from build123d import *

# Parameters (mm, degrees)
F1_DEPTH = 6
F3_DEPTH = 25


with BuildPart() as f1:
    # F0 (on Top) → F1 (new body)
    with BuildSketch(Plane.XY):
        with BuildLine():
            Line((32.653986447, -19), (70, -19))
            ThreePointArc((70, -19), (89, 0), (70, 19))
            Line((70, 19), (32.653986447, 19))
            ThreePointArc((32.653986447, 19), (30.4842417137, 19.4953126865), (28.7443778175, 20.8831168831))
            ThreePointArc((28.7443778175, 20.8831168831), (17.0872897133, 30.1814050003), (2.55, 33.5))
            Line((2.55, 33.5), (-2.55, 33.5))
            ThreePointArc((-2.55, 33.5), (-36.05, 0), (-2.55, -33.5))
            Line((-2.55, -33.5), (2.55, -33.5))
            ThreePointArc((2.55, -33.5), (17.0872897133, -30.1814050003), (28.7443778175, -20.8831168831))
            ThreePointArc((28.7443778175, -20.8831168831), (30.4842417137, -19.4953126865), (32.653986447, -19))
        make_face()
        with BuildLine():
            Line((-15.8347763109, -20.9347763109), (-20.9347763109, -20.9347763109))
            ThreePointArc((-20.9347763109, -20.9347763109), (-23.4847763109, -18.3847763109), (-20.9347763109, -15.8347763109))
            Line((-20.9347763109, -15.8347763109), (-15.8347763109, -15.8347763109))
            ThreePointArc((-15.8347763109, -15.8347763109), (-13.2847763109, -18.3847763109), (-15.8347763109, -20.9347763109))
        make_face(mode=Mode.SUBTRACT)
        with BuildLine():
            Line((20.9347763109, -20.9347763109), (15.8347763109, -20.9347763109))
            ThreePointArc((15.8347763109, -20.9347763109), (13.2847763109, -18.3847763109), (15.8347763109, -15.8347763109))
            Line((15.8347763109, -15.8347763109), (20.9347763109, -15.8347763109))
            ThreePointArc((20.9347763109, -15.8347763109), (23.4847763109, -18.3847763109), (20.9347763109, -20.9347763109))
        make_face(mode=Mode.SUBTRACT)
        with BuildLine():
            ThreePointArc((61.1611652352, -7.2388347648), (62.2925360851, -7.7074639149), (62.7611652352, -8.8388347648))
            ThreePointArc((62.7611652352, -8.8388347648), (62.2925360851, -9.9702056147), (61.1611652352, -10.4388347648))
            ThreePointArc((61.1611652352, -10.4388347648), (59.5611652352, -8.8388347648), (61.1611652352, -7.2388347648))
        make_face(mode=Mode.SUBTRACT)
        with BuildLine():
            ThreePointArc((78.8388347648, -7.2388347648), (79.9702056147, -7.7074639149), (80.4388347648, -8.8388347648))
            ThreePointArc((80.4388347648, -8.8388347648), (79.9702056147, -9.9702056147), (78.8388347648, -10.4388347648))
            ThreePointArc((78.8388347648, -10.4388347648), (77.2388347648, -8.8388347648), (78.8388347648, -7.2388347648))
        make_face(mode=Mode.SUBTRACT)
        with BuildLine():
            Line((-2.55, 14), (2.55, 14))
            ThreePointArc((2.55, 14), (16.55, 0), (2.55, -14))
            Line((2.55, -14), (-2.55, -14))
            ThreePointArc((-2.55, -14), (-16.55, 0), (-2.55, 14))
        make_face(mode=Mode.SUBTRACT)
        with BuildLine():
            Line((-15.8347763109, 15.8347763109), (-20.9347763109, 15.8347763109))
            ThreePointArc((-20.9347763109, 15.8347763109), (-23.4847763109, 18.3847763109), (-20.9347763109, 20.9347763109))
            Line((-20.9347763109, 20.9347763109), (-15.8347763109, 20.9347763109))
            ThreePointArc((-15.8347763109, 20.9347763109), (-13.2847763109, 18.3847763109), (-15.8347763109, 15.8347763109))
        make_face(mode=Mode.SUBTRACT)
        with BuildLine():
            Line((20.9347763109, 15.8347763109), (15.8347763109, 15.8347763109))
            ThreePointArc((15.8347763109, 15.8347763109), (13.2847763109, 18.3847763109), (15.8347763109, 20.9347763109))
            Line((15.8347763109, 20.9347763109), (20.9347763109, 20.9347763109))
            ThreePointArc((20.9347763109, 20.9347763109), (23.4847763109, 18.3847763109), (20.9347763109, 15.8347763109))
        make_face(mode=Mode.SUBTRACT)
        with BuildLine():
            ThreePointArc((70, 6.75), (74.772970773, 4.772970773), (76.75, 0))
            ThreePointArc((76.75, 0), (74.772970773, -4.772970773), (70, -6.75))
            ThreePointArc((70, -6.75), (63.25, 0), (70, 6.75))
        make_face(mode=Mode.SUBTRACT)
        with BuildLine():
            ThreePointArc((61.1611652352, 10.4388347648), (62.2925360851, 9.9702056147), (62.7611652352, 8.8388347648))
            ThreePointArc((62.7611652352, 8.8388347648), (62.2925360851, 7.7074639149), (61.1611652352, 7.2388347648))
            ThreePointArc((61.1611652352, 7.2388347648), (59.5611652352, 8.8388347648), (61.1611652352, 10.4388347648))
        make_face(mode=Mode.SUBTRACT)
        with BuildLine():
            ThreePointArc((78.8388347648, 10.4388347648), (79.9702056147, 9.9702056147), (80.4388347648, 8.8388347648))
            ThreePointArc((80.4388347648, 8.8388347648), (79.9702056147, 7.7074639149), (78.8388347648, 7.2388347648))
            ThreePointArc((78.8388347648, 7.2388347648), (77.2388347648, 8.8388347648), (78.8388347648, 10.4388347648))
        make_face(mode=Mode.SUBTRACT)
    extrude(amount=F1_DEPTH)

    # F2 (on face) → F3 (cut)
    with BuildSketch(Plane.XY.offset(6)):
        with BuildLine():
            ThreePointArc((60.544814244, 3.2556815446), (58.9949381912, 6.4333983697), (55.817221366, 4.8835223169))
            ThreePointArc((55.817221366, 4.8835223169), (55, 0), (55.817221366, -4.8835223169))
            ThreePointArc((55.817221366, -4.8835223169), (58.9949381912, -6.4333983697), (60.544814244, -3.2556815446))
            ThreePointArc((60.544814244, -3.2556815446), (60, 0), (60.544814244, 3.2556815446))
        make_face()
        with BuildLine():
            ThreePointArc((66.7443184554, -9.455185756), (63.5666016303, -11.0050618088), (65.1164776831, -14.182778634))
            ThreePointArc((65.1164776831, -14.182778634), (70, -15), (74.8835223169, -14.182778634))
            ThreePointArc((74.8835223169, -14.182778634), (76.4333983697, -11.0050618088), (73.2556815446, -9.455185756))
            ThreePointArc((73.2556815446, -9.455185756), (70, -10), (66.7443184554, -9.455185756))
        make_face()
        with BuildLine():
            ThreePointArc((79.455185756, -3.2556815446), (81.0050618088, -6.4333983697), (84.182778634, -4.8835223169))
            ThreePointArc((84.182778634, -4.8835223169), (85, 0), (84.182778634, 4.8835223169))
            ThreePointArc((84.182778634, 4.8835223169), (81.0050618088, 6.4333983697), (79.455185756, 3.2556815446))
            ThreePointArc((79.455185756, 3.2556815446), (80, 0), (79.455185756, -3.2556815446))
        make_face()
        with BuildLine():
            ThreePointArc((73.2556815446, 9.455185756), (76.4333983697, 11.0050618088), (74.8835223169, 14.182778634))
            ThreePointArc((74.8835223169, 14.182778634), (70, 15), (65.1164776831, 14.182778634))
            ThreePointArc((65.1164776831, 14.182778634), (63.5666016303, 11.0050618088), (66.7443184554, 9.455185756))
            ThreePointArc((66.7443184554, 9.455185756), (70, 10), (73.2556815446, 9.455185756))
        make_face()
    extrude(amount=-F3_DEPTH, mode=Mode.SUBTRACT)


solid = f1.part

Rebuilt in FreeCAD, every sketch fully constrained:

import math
import FreeCAD as App
import Part
import Sketcher

V = App.Vector

doc = App.newDocument("Part")
body = doc.addObject("PartDesign::Body", "Body")

# Sketch on XY plane
sketch1 = body.newObject("Sketcher::SketchObject", "Sketch")
sketch1.AttachmentSupport = (doc.getObject("XY_Plane"), [""])
sketch1.MapMode = "FlatFace"
sketch1.addGeometry(Part.LineSegment(V(32.7, -19, 0), V(70, -19, 0)), False)
sketch1.addGeometry(Part.ArcOfCircle(Part.Circle(V(70, 0, 0), V(0, 0, 1), 19), math.radians(-90), math.radians(90)), False)
sketch1.addGeometry(Part.LineSegment(V(70, 19, 0), V(32.7, 19, 0)), False)
sketch1.addGeometry(Part.ArcOfCircle(Part.Circle(V(32.7, 24, 0), V(0, 0, 1), 5), math.radians(-141), math.radians(-90)), False)
sketch1.addGeometry(Part.ArcOfCircle(Part.Circle(V(2.5, 0, 0), V(0, 0, 1), 33.5), math.radians(39), math.radians(90)), False)
sketch1.addGeometry(Part.LineSegment(V(2.5, 33.5, 0), V(-2.5, 33.5, 0)), False)
sketch1.addGeometry(Part.ArcOfCircle(Part.Circle(V(-2.5, 0, 0), V(0, 0, 1), 33.5), math.radians(90), math.radians(270)), False)
sketch1.addGeometry(Part.LineSegment(V(-2.5, -33.5, 0), V(2.5, -33.5, 0)), False)
sketch1.addGeometry(Part.ArcOfCircle(Part.Circle(V(2.5, 0, 0), V(0, 0, 1), 33.5), math.radians(-90), math.radians(-39)), False)
sketch1.addGeometry(Part.ArcOfCircle(Part.Circle(V(32.7, -24, 0), V(0, 0, 1), 5), math.radians(90), math.radians(141)), False)
sketch1.addGeometry(Part.ArcOfCircle(Part.Circle(V(-15.8, -18.4, 0), V(0, 0, 1), 2.5), math.radians(-90), math.radians(90)), False)
sketch1.addGeometry(Part.LineSegment(V(-15.8, -20.9, 0), V(-20.9, -20.9, 0)), False)
sketch1.addGeometry(Part.ArcOfCircle(Part.Circle(V(-20.9, -18.4, 0), V(0, 0, 1), 2.5), math.radians(90), math.radians(270)), False)
sketch1.addGeometry(Part.LineSegment(V(-20.9, -15.8, 0), V(-15.8, -15.8, 0)), False)
sketch1.addGeometry(Part.ArcOfCircle(Part.Circle(V(20.9, -18.4, 0), V(0, 0, 1), 2.5), math.radians(-90), math.radians(90)), False)
sketch1.addGeometry(Part.LineSegment(V(20.9, -20.9, 0), V(15.8, -20.9, 0)), False)
sketch1.addGeometry(Part.ArcOfCircle(Part.Circle(V(15.8, -18.4, 0), V(0, 0, 1), 2.5), math.radians(90), math.radians(270)), False)
sketch1.addGeometry(Part.LineSegment(V(15.8, -15.8, 0), V(20.9, -15.8, 0)), False)
sketch1.addGeometry(Part.ArcOfCircle(Part.Circle(V(61.2, -8.8, 0), V(0, 0, 1), 1.6), math.radians(90), math.radians(270)), False)
sketch1.addGeometry(Part.ArcOfCircle(Part.Circle(V(61.2, -8.8, 0), V(0, 0, 1), 1.6), math.radians(0), math.radians(90)), False)
sketch1.addGeometry(Part.ArcOfCircle(Part.Circle(V(61.2, -8.8, 0), V(0, 0, 1), 1.6), math.radians(-90), math.radians(0)), False)
sketch1.addGeometry(Part.ArcOfCircle(Part.Circle(V(78.8, -8.8, 0), V(0, 0, 1), 1.6), math.radians(90), math.radians(270)), False)
sketch1.addGeometry(Part.ArcOfCircle(Part.Circle(V(78.8, -8.8, 0), V(0, 0, 1), 1.6), math.radians(0), math.radians(90)), False)
sketch1.addGeometry(Part.ArcOfCircle(Part.Circle(V(78.8, -8.8, 0), V(0, 0, 1), 1.6), math.radians(-90), math.radians(0)), False)
sketch1.addGeometry(Part.ArcOfCircle(Part.Circle(V(-2.5, 0, 0), V(0, 0, 1), 14), math.radians(90), math.radians(270)), False)
sketch1.addGeometry(Part.LineSegment(V(-2.5, 14, 0), V(2.5, 14, 0)), False)
sketch1.addGeometry(Part.ArcOfCircle(Part.Circle(V(2.5, 0, 0), V(0, 0, 1), 14), math.radians(-90), math.radians(90)), False)
sketch1.addGeometry(Part.LineSegment(V(2.5, -14, 0), V(-2.5, -14, 0)), False)
sketch1.addGeometry(Part.ArcOfCircle(Part.Circle(V(-15.8, 18.4, 0), V(0, 0, 1), 2.5), math.radians(-90), math.radians(90)), False)
sketch1.addGeometry(Part.LineSegment(V(-15.8, 15.8, 0), V(-20.9, 15.8, 0)), False)
sketch1.addGeometry(Part.ArcOfCircle(Part.Circle(V(-20.9, 18.4, 0), V(0, 0, 1), 2.5), math.radians(90), math.radians(270)), False)
sketch1.addGeometry(Part.LineSegment(V(-20.9, 20.9, 0), V(-15.8, 20.9, 0)), False)
sketch1.addGeometry(Part.ArcOfCircle(Part.Circle(V(20.9, 18.4, 0), V(0, 0, 1), 2.5), math.radians(-90), math.radians(90)), False)
sketch1.addGeometry(Part.LineSegment(V(20.9, 15.8, 0), V(15.8, 15.8, 0)), False)
sketch1.addGeometry(Part.ArcOfCircle(Part.Circle(V(15.8, 18.4, 0), V(0, 0, 1), 2.5), math.radians(90), math.radians(270)), False)
sketch1.addGeometry(Part.LineSegment(V(15.8, 20.9, 0), V(20.9, 20.9, 0)), False)
sketch1.addGeometry(Part.ArcOfCircle(Part.Circle(V(70, 0, 0), V(0, 0, 1), 6.8), math.radians(90), math.radians(270)), False)
sketch1.addGeometry(Part.ArcOfCircle(Part.Circle(V(70, 0, 0), V(0, 0, 1), 6.8), math.radians(0), math.radians(90)), False)
sketch1.addGeometry(Part.ArcOfCircle(Part.Circle(V(70, 0, 0), V(0, 0, 1), 6.8), math.radians(-90), math.radians(0)), False)
sketch1.addGeometry(Part.ArcOfCircle(Part.Circle(V(61.2, 8.8, 0), V(0, 0, 1), 1.6), math.radians(90), math.radians(270)), False)
sketch1.addGeometry(Part.ArcOfCircle(Part.Circle(V(61.2, 8.8, 0), V(0, 0, 1), 1.6), math.radians(0), math.radians(90)), False)
sketch1.addGeometry(Part.ArcOfCircle(Part.Circle(V(61.2, 8.8, 0), V(0, 0, 1), 1.6), math.radians(-90), math.radians(0)), False)
sketch1.addGeometry(Part.ArcOfCircle(Part.Circle(V(78.8, 8.8, 0), V(0, 0, 1), 1.6), math.radians(90), math.radians(270)), False)
sketch1.addGeometry(Part.ArcOfCircle(Part.Circle(V(78.8, 8.8, 0), V(0, 0, 1), 1.6), math.radians(0), math.radians(90)), False)
sketch1.addGeometry(Part.ArcOfCircle(Part.Circle(V(78.8, 8.8, 0), V(0, 0, 1), 1.6), math.radians(-90), math.radians(0)), False)
sketch1.addConstraint(Sketcher.Constraint("Tangent", 0, 2, 1, 1))
sketch1.addConstraint(Sketcher.Constraint("Tangent", 1, 2, 2, 1))
sketch1.addConstraint(Sketcher.Constraint("Tangent", 2, 2, 3, 2))
sketch1.addConstraint(Sketcher.Constraint("Tangent", 3, 1, 4, 1))
sketch1.addConstraint(Sketcher.Constraint("Tangent", 4, 2, 5, 1))
sketch1.addConstraint(Sketcher.Constraint("Tangent", 5, 2, 6, 1))
sketch1.addConstraint(Sketcher.Constraint("Tangent", 6, 2, 7, 1))
sketch1.addConstraint(Sketcher.Constraint("Tangent", 7, 2, 8, 1))
sketch1.addConstraint(Sketcher.Constraint("Tangent", 8, 2, 9, 2))
sketch1.addConstraint(Sketcher.Constraint("Tangent", 9, 1, 0, 1))
sketch1.addConstraint(Sketcher.Constraint("Tangent", 10, 1, 11, 1))
sketch1.addConstraint(Sketcher.Constraint("Tangent", 11, 2, 12, 2))
sketch1.addConstraint(Sketcher.Constraint("Tangent", 12, 1, 13, 1))
sketch1.addConstraint(Sketcher.Constraint("Tangent", 13, 2, 10, 2))
sketch1.addConstraint(Sketcher.Constraint("Tangent", 14, 1, 15, 1))
sketch1.addConstraint(Sketcher.Constraint("Tangent", 15, 2, 16, 2))
sketch1.addConstraint(Sketcher.Constraint("Tangent", 16, 1, 17, 1))
sketch1.addConstraint(Sketcher.Constraint("Tangent", 17, 2, 14, 2))
sketch1.addConstraint(Sketcher.Constraint("Tangent", 18, 1, 19, 2))
sketch1.addConstraint(Sketcher.Constraint("Tangent", 19, 1, 20, 2))
sketch1.addConstraint(Sketcher.Constraint("Tangent", 20, 1, 18, 2))
sketch1.addConstraint(Sketcher.Constraint("Tangent", 21, 1, 22, 2))
sketch1.addConstraint(Sketcher.Constraint("Tangent", 22, 1, 23, 2))
sketch1.addConstraint(Sketcher.Constraint("Tangent", 23, 1, 21, 2))
sketch1.addConstraint(Sketcher.Constraint("Tangent", 24, 1, 25, 1))
sketch1.addConstraint(Sketcher.Constraint("Tangent", 25, 2, 26, 2))
sketch1.addConstraint(Sketcher.Constraint("Tangent", 26, 1, 27, 1))
sketch1.addConstraint(Sketcher.Constraint("Tangent", 27, 2, 24, 2))
sketch1.addConstraint(Sketcher.Constraint("Tangent", 28, 1, 29, 1))
sketch1.addConstraint(Sketcher.Constraint("Tangent", 29, 2, 30, 2))
sketch1.addConstraint(Sketcher.Constraint("Tangent", 30, 1, 31, 1))
sketch1.addConstraint(Sketcher.Constraint("Tangent", 31, 2, 28, 2))
sketch1.addConstraint(Sketcher.Constraint("Tangent", 32, 1, 33, 1))
sketch1.addConstraint(Sketcher.Constraint("Tangent", 33, 2, 34, 2))
sketch1.addConstraint(Sketcher.Constraint("Tangent", 34, 1, 35, 1))
sketch1.addConstraint(Sketcher.Constraint("Tangent", 35, 2, 32, 2))
sketch1.addConstraint(Sketcher.Constraint("Tangent", 36, 1, 37, 2))
sketch1.addConstraint(Sketcher.Constraint("Tangent", 37, 1, 38, 2))
sketch1.addConstraint(Sketcher.Constraint("Tangent", 38, 1, 36, 2))
sketch1.addConstraint(Sketcher.Constraint("Tangent", 39, 1, 40, 2))
sketch1.addConstraint(Sketcher.Constraint("Tangent", 40, 1, 41, 2))
sketch1.addConstraint(Sketcher.Constraint("Tangent", 41, 1, 39, 2))
sketch1.addConstraint(Sketcher.Constraint("Tangent", 42, 1, 43, 2))
sketch1.addConstraint(Sketcher.Constraint("Tangent", 43, 1, 44, 2))
sketch1.addConstraint(Sketcher.Constraint("Tangent", 44, 1, 42, 2))
sketch1.addConstraint(Sketcher.Constraint("Horizontal", 0))
sketch1.addConstraint(Sketcher.Constraint("Horizontal", 2))
sketch1.addConstraint(Sketcher.Constraint("Horizontal", 5))
sketch1.addConstraint(Sketcher.Constraint("Horizontal", 7))
sketch1.addConstraint(Sketcher.Constraint("Horizontal", 11))
sketch1.addConstraint(Sketcher.Constraint("Horizontal", 13))
sketch1.addConstraint(Sketcher.Constraint("Horizontal", 15))
sketch1.addConstraint(Sketcher.Constraint("Horizontal", 17))
sketch1.addConstraint(Sketcher.Constraint("Horizontal", 25))
sketch1.addConstraint(Sketcher.Constraint("Horizontal", 27))
sketch1.addConstraint(Sketcher.Constraint("Horizontal", 29))
sketch1.addConstraint(Sketcher.Constraint("Horizontal", 31))
sketch1.addConstraint(Sketcher.Constraint("Horizontal", 33))
sketch1.addConstraint(Sketcher.Constraint("Horizontal", 35))
sketch1.addConstraint(Sketcher.Constraint("Coincident", 8, 3, 4, 3))
sketch1.addConstraint(Sketcher.Constraint("Coincident", 24, 3, 6, 3))
sketch1.addConstraint(Sketcher.Constraint("Coincident", 26, 3, 4, 3))
sketch1.addConstraint(Sketcher.Constraint("Coincident", 36, 3, 1, 3))
sketch1.addConstraint(Sketcher.Constraint("Equal", 3, 9))
sketch1.addConstraint(Sketcher.Constraint("Equal", 12, 14))
sketch1.addConstraint(Sketcher.Constraint("Equal", 20, 21))
sketch1.addConstraint(Sketcher.Constraint("Equal", 16, 28))
sketch1.addConstraint(Sketcher.Constraint("Equal", 30, 32))
sketch1.addConstraint(Sketcher.Constraint("Equal", 23, 39))
sketch1.addConstraint(Sketcher.Constraint("Equal", 41, 42))
sketch1.addConstraint(Sketcher.Constraint("Symmetric", 4, 3, 6, 3, -1, 1))
sketch1.addConstraint(Sketcher.Constraint("Symmetric", 16, 3, 28, 3, -1, 1))
sketch1.addConstraint(Sketcher.Constraint("Symmetric", 12, 3, 32, 3, -1, 1))
sketch1.addConstraint(Sketcher.Constraint("Symmetric", 12, 3, 14, 3, -2))
sketch1.addConstraint(Sketcher.Constraint("Symmetric", 18, 3, 39, 3, -1))
sketch1.addConstraint(Sketcher.Constraint("Symmetric", 21, 3, 42, 3, -1))
sketch1.addConstraint(Sketcher.Constraint("Symmetric", 36, 1, 38, 1, -1))
sketch1.addConstraint(Sketcher.Constraint("PointOnObject", 37, 1, -1))
sketch1.addConstraint(Sketcher.Constraint("Horizontal", 20, 3, 21, 3))
sketch1.addConstraint(Sketcher.Constraint("Horizontal", 23, 3, 19, 1))
sketch1.addConstraint(Sketcher.Constraint("Horizontal", 19, 1, 22, 1))
sketch1.addConstraint(Sketcher.Constraint("Horizontal", 44, 3, 40, 1))
sketch1.addConstraint(Sketcher.Constraint("Horizontal", 40, 1, 43, 1))
sketch1.addConstraint(Sketcher.Constraint("Vertical", 10, 3, 28, 3))
sketch1.addConstraint(Sketcher.Constraint("Vertical", 12, 3, 30, 3))
sketch1.addConstraint(Sketcher.Constraint("Vertical", 16, 3, 34, 3))
sketch1.addConstraint(Sketcher.Constraint("Vertical", 41, 3, 18, 1))
sketch1.addConstraint(Sketcher.Constraint("Vertical", 18, 1, 20, 1))
sketch1.addConstraint(Sketcher.Constraint("Vertical", 44, 3, 21, 1))
sketch1.addConstraint(Sketcher.Constraint("Vertical", 21, 1, 23, 1))
sketch1.addConstraint(Sketcher.Constraint("Vertical", 1, 2, 36, 1))
sketch1.addConstraint(Sketcher.Constraint("Vertical", 20, 1, 39, 1))
sketch1.addConstraint(Sketcher.Constraint("Vertical", 39, 1, 41, 1))
sketch1.addConstraint(Sketcher.Constraint("Vertical", 23, 1, 42, 1))
sketch1.addConstraint(Sketcher.Constraint("Vertical", 42, 1, 44, 1))
sketch1.addConstraint(Sketcher.Constraint("Equal", 7, 11))
sketch1.addConstraint(Sketcher.Constraint("Radius", 1, 19.0))
sketch1.addConstraint(Sketcher.Constraint("Radius", 3, 5.0))
sketch1.addConstraint(Sketcher.Constraint("Radius", 24, 14.0))
sketch1.addConstraint(Sketcher.Constraint("Radius", 4, 33.5))
sketch1.addConstraint(Sketcher.Constraint("Radius", 18, 1.6))
sketch1.addConstraint(Sketcher.Constraint("Radius", 10, 2.55))
sketch1.addConstraint(Sketcher.Constraint("Radius", 36, 6.75))
sketch1.addConstraint(Sketcher.Constraint("DistanceX", 5, 2, 5, 1, 5.1))
sketch1.addConstraint(Sketcher.Constraint("DistanceX", -1, 1, 1, 3, 70.0))
sketch1.addConstraint(Sketcher.Constraint("DistanceX", 10, 3, -1, 1, 15.834776))
sketch1.addConstraint(Sketcher.Constraint("DistanceY", 10, 3, -1, 1, 18.384776))
sketch1.addConstraint(Sketcher.Constraint("DistanceX", -1, 1, 18, 3, 61.161165))
sketch1.addConstraint(Sketcher.Constraint("DistanceY", 18, 3, -1, 1, 8.838835))
sketch1.addConstraint(Sketcher.Constraint("DistanceX", -1, 1, 21, 3, 78.838835))
pad1 = body.newObject("PartDesign::Pad", "Pad")
pad1.Profile = sketch1
pad1.Length = 6

# Sketch on XY plane
sketch2 = body.newObject("Sketcher::SketchObject", "Sketch001")
sketch2.AttachmentSupport = (doc.getObject("XY_Plane"), [""])
sketch2.MapMode = "FlatFace"
sketch2.AttachmentOffset = App.Placement(V(0, 0, 6), App.Rotation())
sketch2.addGeometry(Part.ArcOfCircle(Part.Circle(V(58.2, 4.1, 0), V(0, 0, 1), 2.5), math.radians(-19), math.radians(161)), False)
sketch2.addGeometry(Part.ArcOfCircle(Part.Circle(V(70, 0, 0), V(0, 0, 1), 15), math.radians(161), math.radians(199)), False)
sketch2.addGeometry(Part.ArcOfCircle(Part.Circle(V(58.2, -4.1, 0), V(0, 0, 1), 2.5), math.radians(-161), math.radians(19)), False)
sketch2.addGeometry(Part.ArcOfCircle(Part.Circle(V(70, 0, 0), V(0, 0, 1), 10), math.radians(161), math.radians(199)), False)
sketch2.addGeometry(Part.ArcOfCircle(Part.Circle(V(65.9, -11.8, 0), V(0, 0, 1), 2.5), math.radians(71), math.radians(251)), False)
sketch2.addGeometry(Part.ArcOfCircle(Part.Circle(V(70, 0, 0), V(0, 0, 1), 15), math.radians(-109), math.radians(-71)), False)
sketch2.addGeometry(Part.ArcOfCircle(Part.Circle(V(74.1, -11.8, 0), V(0, 0, 1), 2.5), math.radians(-71), math.radians(109)), False)
sketch2.addGeometry(Part.ArcOfCircle(Part.Circle(V(70, 0, 0), V(0, 0, 1), 10), math.radians(-109), math.radians(-71)), False)
sketch2.addGeometry(Part.ArcOfCircle(Part.Circle(V(81.8, -4.1, 0), V(0, 0, 1), 2.5), math.radians(161), math.radians(341)), False)
sketch2.addGeometry(Part.ArcOfCircle(Part.Circle(V(70, 0, 0), V(0, 0, 1), 15), math.radians(-19), math.radians(19)), False)
sketch2.addGeometry(Part.ArcOfCircle(Part.Circle(V(81.8, 4.1, 0), V(0, 0, 1), 2.5), math.radians(19), math.radians(199)), False)
sketch2.addGeometry(Part.ArcOfCircle(Part.Circle(V(70, 0, 0), V(0, 0, 1), 10), math.radians(-19), math.radians(19)), False)
sketch2.addGeometry(Part.ArcOfCircle(Part.Circle(V(74.1, 11.8, 0), V(0, 0, 1), 2.5), math.radians(-109), math.radians(71)), False)
sketch2.addGeometry(Part.ArcOfCircle(Part.Circle(V(70, 0, 0), V(0, 0, 1), 15), math.radians(71), math.radians(109)), False)
sketch2.addGeometry(Part.ArcOfCircle(Part.Circle(V(65.9, 11.8, 0), V(0, 0, 1), 2.5), math.radians(109), math.radians(289)), False)
sketch2.addGeometry(Part.ArcOfCircle(Part.Circle(V(70, 0, 0), V(0, 0, 1), 10), math.radians(71), math.radians(109)), False)
sketch2.addConstraint(Sketcher.Constraint("Tangent", 0, 2, 1, 1))
sketch2.addConstraint(Sketcher.Constraint("Tangent", 1, 2, 2, 1))
sketch2.addConstraint(Sketcher.Constraint("Tangent", 2, 2, 3, 2))
sketch2.addConstraint(Sketcher.Constraint("Tangent", 3, 1, 0, 1))
sketch2.addConstraint(Sketcher.Constraint("Tangent", 4, 2, 5, 1))
sketch2.addConstraint(Sketcher.Constraint("Tangent", 5, 2, 6, 1))
sketch2.addConstraint(Sketcher.Constraint("Tangent", 6, 2, 7, 2))
sketch2.addConstraint(Sketcher.Constraint("Tangent", 7, 1, 4, 1))
sketch2.addConstraint(Sketcher.Constraint("Tangent", 8, 2, 9, 1))
sketch2.addConstraint(Sketcher.Constraint("Tangent", 9, 2, 10, 1))
sketch2.addConstraint(Sketcher.Constraint("Tangent", 10, 2, 11, 2))
sketch2.addConstraint(Sketcher.Constraint("Tangent", 11, 1, 8, 1))
sketch2.addConstraint(Sketcher.Constraint("Tangent", 12, 2, 13, 1))
sketch2.addConstraint(Sketcher.Constraint("Tangent", 13, 2, 14, 1))
sketch2.addConstraint(Sketcher.Constraint("Tangent", 14, 2, 15, 2))
sketch2.addConstraint(Sketcher.Constraint("Tangent", 15, 1, 12, 1))
sketch2.addConstraint(Sketcher.Constraint("Coincident", 3, 3, 1, 3))
sketch2.addConstraint(Sketcher.Constraint("Coincident", 5, 3, 1, 3))
sketch2.addConstraint(Sketcher.Constraint("Coincident", 7, 3, 1, 3))
sketch2.addConstraint(Sketcher.Constraint("Coincident", 9, 3, 1, 3))
sketch2.addConstraint(Sketcher.Constraint("Coincident", 11, 3, 1, 3))
sketch2.addConstraint(Sketcher.Constraint("Coincident", 13, 3, 1, 3))
sketch2.addConstraint(Sketcher.Constraint("Coincident", 15, 3, 1, 3))
sketch2.addConstraint(Sketcher.Constraint("Equal", 2, 4))
sketch2.addConstraint(Sketcher.Constraint("Equal", 1, 5))
sketch2.addConstraint(Sketcher.Constraint("Equal", 6, 8))
sketch2.addConstraint(Sketcher.Constraint("Equal", 5, 9))
sketch2.addConstraint(Sketcher.Constraint("Equal", 10, 12))
sketch2.addConstraint(Sketcher.Constraint("Equal", 9, 13))
sketch2.addConstraint(Sketcher.Constraint("Symmetric", 0, 3, 2, 3, -1))
sketch2.addConstraint(Sketcher.Constraint("Horizontal", 4, 3, 6, 3))
sketch2.addConstraint(Sketcher.Constraint("Horizontal", 2, 3, 8, 3))
sketch2.addConstraint(Sketcher.Constraint("Horizontal", 0, 3, 10, 3))
sketch2.addConstraint(Sketcher.Constraint("Horizontal", 12, 3, 14, 3))
sketch2.addConstraint(Sketcher.Constraint("Vertical", 6, 3, 12, 3))
sketch2.addConstraint(Sketcher.Constraint("Radius", 1, 15.0))
sketch2.addConstraint(Sketcher.Constraint("Radius", 3, 10.0))
sketch2.addConstraint(Sketcher.Constraint("DistanceX", -1, 1, 1, 3, 70.0))
sketch2.addConstraint(Sketcher.Constraint("DistanceY", -1, 1, 0, 3, 4.069602))
sketch2.addConstraint(Sketcher.Constraint("DistanceX", -1, 1, 4, 3, 65.930398))
pocket1 = body.newObject("PartDesign::Pocket", "Pocket")
pocket1.Profile = sketch2
pocket1.Length = 25

doc.recompute()
